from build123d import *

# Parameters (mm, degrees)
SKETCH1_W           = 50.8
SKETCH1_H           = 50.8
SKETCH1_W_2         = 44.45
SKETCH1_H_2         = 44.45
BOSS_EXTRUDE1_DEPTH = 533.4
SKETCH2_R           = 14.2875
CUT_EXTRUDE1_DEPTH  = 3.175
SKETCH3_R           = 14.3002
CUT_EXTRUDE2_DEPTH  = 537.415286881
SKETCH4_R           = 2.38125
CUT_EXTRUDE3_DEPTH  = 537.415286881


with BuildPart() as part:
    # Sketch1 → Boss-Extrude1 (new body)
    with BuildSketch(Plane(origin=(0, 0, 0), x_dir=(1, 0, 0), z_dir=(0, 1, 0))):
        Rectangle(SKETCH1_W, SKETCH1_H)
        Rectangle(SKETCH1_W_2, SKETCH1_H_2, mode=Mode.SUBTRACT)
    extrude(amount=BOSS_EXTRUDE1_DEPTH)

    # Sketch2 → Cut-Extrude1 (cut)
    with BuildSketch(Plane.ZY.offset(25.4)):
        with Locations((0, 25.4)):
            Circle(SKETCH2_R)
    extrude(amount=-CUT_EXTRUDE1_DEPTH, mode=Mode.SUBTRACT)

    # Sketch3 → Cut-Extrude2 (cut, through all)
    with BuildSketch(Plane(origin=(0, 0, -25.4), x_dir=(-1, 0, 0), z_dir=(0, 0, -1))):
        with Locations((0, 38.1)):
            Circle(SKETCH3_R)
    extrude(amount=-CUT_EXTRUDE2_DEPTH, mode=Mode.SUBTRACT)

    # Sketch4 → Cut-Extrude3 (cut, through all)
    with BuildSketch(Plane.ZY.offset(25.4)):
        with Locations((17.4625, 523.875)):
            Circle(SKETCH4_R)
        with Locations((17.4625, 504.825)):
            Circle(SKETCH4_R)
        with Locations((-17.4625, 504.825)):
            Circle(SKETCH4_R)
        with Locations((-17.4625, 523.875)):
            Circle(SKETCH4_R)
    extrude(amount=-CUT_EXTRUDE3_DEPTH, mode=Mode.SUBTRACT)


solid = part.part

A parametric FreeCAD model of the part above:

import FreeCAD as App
import Part
import Sketcher

V = App.Vector
Q = App.Units.Quantity

doc = App.newDocument("Part")
params = doc.addObject("Spreadsheet::Sheet", "Params")
for row, (alias, value) in enumerate([
    ("sketch1_width", "2 in"),
    ("sketch1_width2", "1.75 in"),
    ("pad1_length", "21 in"),
    ("sketch2_diameter", "1.125 in"),
    ("pocket1_length", "0.125 in"),
    ("sketch3_diameter", "1.126 in"),
    ("sketch4_diameter", "0.1875 in"),
], start=1):
    params.set(f"A{row}", alias)
    params.set(f"B{row}", "=" + value)
    params.setAlias(f"B{row}", alias)

body = doc.addObject("PartDesign::Body", "Body")

# Sketch on XZ plane
sketch1 = body.newObject("Sketcher::SketchObject", "Sketch")
sketch1.AttachmentSupport = (doc.getObject("XZ_Plane"), [""])
sketch1.MapMode = "FlatFace"
sketch1.addGeometry([
    Part.LineSegment(V(-25, -25, 0), V(-25, 25, 0)),  # 0
    Part.LineSegment(V(-25, 25, 0), V(25, 25, 0)),  # 1
    Part.LineSegment(V(25, 25, 0), V(25, -25, 0)),  # 2
    Part.LineSegment(V(25, -25, 0), V(-25, -25, 0)),  # 3
    Part.LineSegment(V(22, 22, 0), V(-22, 22, 0)),  # 4
    Part.LineSegment(V(-22, 22, 0), V(-22, -22, 0)),  # 5
    Part.LineSegment(V(-22, -22, 0), V(22, -22, 0)),  # 6
    Part.LineSegment(V(22, -22, 0), V(22, 22, 0)),  # 7
], False)
sketch1.addConstraint([
    Sketcher.Constraint("Coincident", 0, 2, 1, 1),
    Sketcher.Constraint("Coincident", 1, 2, 2, 1),
    Sketcher.Constraint("Coincident", 2, 2, 3, 1),
    Sketcher.Constraint("Coincident", 3, 2, 0, 1),
    Sketcher.Constraint("Coincident", 4, 2, 5, 1),
    Sketcher.Constraint("Coincident", 5, 2, 6, 1),
    Sketcher.Constraint("Coincident", 6, 2, 7, 1),
    Sketcher.Constraint("Coincident", 7, 2, 4, 1),
    Sketcher.Constraint("Vertical", 0),
    Sketcher.Constraint("Horizontal", 1),
    Sketcher.Constraint("Vertical", 2),
    Sketcher.Constraint("Horizontal", 3),
    Sketcher.Constraint("Horizontal", 4),
    Sketcher.Constraint("Vertical", 5),
    Sketcher.Constraint("Horizontal", 6),
    Sketcher.Constraint("Vertical", 7),
    Sketcher.Constraint("Symmetric", 0, 2, 2, 2, -1, 1),
    Sketcher.Constraint("Symmetric", 4, 2, 6, 2, -1, 1),
    Sketcher.Constraint("Equal", 3, 0),
    Sketcher.Constraint("Equal", 6, 5),
    Sketcher.Constraint("DistanceX", 1, 1, 1, 2, Q("2 in")),
    Sketcher.Constraint("DistanceX", 4, 2, 4, 1, Q("1.75 in")),
])
sketch1.setExpression("Constraints[20]", "Params.sketch1_width")
sketch1.setExpression("Constraints[21]", "Params.sketch1_width2")
pad1 = body.newObject("PartDesign::Pad", "Pad")
pad1.Profile = sketch1
pad1.setExpression("Length", "Params.pad1_length")
pad1.Reversed = True

# Sketch on YZ plane
sketch2 = body.newObject("Sketcher::SketchObject", "Sketch001")
sketch2.AttachmentSupport = (doc.getObject("YZ_Plane"), [""])
sketch2.MapMode = "FlatFace"
sketch2.AttachmentOffset = App.Placement(V(0, 0, -1 * 25.4), App.Rotation())
sketch2.addGeometry(Part.Circle(V(25, 0, 0), V(0, 0, 1), 14), False)
sketch2.addConstraint([
    Sketcher.Constraint("PointOnObject", 0, 3, -1),
    Sketcher.Constraint("Diameter", 0, Q("1.125 in")),
    Sketcher.Constraint("DistanceX", -1, 1, 0, 3, Q("1 in")),
])
sketch2.setExpression("Constraints[1]", "Params.sketch2_diameter")
pocket1 = body.newObject("PartDesign::Pocket", "Pocket")
pocket1.Profile = sketch2
pocket1.setExpression("Length", "Params.pocket1_length")
pocket1.Reversed = True

# Sketch on XY plane
sketch3 = body.newObject("Sketcher::SketchObject", "Sketch002")
sketch3.AttachmentSupport = (doc.getObject("XY_Plane"), [""])
sketch3.MapMode = "FlatFace"
sketch3.AttachmentOffset = App.Placement(V(0, 0, -1 * 25.4), App.Rotation())
sketch3.addGeometry(Part.Circle(V(0, 38, 0), V(0, 0, 1), 14), False)
sketch3.addConstraint([
    Sketcher.Constraint("PointOnObject", 0, 3, -2),
    Sketcher.Constraint("Diameter", 0, Q("1.126 in")),
    Sketcher.Constraint("DistanceY", -1, 1, 0, 3, Q("1.5 in")),
])
sketch3.setExpression("Constraints[1]", "Params.sketch3_diameter")
pocket2 = body.newObject("PartDesign::Pocket", "Pocket001")
pocket2.Profile = sketch3
pocket2.Type = "ThroughAll"
pocket2.Reversed = True

# Sketch on YZ plane
sketch4 = body.newObject("Sketcher::SketchObject", "Sketch003")
sketch4.AttachmentSupport = (doc.getObject("YZ_Plane"), [""])
sketch4.MapMode = "FlatFace"
sketch4.AttachmentOffset = App.Placement(V(0, 0, -1 * 25.4), App.Rotation())
sketch4.addGeometry([
    Part.Circle(V(523.9, 17.5, 0), V(0, 0, 1), 2.4),
    Part.Circle(V(504.8, 17.5, 0), V(0, 0, 1), 2.4),
    Part.Circle(V(504.8, -17.5, 0), V(0, 0, 1), 2.4),
    Part.Circle(V(523.9, -17.5, 0), V(0, 0, 1), 2.4),
], False)
sketch4.addConstraint([
    Sketcher.Constraint("Equal", 0, 1),
    Sketcher.Constraint("Equal", 1, 2),
    Sketcher.Constraint("Equal", 2, 3),
    Sketcher.Constraint("Symmetric", 1, 3, 2, 3, -1),
    Sketcher.Constraint("Symmetric", 0, 3, 3, 3, -1),
    Sketcher.Constraint("Horizontal", 0, 3, 1, 3),
    Sketcher.Constraint("Diameter", 0, Q("0.1875 in")),
    Sketcher.Constraint("DistanceX", 1, 3, 0, 3, Q("0.75 in")),
    Sketcher.Constraint("DistanceX", -1, 1, 0, 3, Q("20.625 in")),
    Sketcher.Constraint("DistanceY", -1, 1, 0, 3, Q("0.6875 in")),
])
sketch4.setExpression("Constraints[6]", "Params.sketch4_diameter")
pocket3 = body.newObject("PartDesign::Pocket", "Pocket002")
pocket3.Profile = sketch4
pocket3.Type = "ThroughAll"
pocket3.Reversed = True

doc.recompute()
